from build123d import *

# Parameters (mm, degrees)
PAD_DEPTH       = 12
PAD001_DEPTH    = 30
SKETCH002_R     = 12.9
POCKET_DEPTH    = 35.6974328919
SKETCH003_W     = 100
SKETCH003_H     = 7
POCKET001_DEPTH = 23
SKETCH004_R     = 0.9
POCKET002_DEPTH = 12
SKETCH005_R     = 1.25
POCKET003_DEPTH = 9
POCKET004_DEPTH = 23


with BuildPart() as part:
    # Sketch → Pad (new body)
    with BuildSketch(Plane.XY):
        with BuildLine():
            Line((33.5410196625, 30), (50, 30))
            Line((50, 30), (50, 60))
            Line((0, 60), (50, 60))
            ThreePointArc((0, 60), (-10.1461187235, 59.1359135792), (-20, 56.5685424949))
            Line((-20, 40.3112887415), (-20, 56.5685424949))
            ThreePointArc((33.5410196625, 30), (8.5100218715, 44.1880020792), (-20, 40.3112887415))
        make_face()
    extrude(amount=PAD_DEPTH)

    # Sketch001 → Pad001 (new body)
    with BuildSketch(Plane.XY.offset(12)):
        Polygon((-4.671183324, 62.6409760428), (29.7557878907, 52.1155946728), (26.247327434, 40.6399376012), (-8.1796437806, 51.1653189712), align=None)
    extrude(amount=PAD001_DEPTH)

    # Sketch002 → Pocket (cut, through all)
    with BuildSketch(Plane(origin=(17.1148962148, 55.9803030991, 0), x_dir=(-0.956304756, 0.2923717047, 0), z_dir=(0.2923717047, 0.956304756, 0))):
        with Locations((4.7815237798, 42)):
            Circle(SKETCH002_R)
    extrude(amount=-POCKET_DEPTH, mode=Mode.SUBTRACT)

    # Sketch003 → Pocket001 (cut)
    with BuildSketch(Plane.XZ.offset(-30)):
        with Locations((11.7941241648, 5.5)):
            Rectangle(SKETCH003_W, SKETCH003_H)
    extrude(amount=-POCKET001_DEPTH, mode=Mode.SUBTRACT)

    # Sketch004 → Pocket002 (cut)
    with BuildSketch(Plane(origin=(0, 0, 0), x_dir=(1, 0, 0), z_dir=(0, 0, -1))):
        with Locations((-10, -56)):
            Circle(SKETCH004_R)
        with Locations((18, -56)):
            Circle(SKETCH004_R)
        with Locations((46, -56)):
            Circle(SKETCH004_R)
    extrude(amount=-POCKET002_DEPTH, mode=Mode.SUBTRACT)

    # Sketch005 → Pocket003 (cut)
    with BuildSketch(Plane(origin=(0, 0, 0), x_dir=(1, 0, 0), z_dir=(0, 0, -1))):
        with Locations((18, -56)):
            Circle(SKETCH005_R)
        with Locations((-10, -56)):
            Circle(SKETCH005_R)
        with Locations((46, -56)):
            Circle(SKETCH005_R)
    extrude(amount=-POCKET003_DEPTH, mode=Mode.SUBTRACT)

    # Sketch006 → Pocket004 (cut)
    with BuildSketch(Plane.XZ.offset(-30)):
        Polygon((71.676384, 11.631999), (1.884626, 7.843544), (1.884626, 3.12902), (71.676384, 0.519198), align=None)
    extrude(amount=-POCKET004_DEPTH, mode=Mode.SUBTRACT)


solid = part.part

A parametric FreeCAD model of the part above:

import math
import FreeCAD as App
import Part
import Sketcher
Q = App.Units.Quantity


def add_polygon(sketch, points):
    """Adds a closed chain of lines whose ends are joined by coincident constraints."""
    first, n = sketch.GeometryCount, len(points)
    for a, b in zip(points, points[1:] + points[:1]):
        sketch.addGeometry(Part.LineSegment(App.Vector(*a, 0), App.Vector(*b, 0)), False)
    for i in range(n):
        sketch.addConstraint(Sketcher.Constraint("Coincident", first + i, 2, first + (i + 1) % n, 1))

doc = App.newDocument("Part")
body = doc.addObject("PartDesign::Body", "Body")

# Sketch on XY plane
sketch1 = doc.addObject("Sketcher::SketchObject", "Sketch")
body.addObject(sketch1)
sketch1.AttachmentSupport = (doc.XY_Plane, [""])
sketch1.MapMode = "FlatFace"
sketch1.addGeometry(Part.LineSegment(App.Vector(33.54102, 30, 0), App.Vector(50, 30, 0)), False)
sketch1.addGeometry(Part.LineSegment(App.Vector(50, 30, 0), App.Vector(50, 60, 0)), False)
sketch1.addGeometry(Part.LineSegment(App.Vector(50, 60, 0), App.Vector(0, 60, 0)), False)
sketch1.addGeometry(Part.ArcOfCircle(Part.Circle(App.Vector(0, 0, 0), App.Vector(0, 0, 1), 60), math.radians(90), math.radians(109.471221)), False)
sketch1.addGeometry(Part.LineSegment(App.Vector(-20, 56.568542, 0), App.Vector(-20, 40.311289, 0)), False)
sketch1.addGeometry(Part.ArcOfCircle(Part.Circle(App.Vector(0, 0, 0), App.Vector(0, 0, 1), 45), math.radians(41.810315), math.radians(116.3878)), False)
sketch1.addConstraint(Sketcher.Constraint("Coincident", 0, 2, 1, 1))
sketch1.addConstraint(Sketcher.Constraint("Coincident", 1, 2, 2, 1))
sketch1.addConstraint(Sketcher.Constraint("Tangent", 2, 2, 3, 1))
sketch1.addConstraint(Sketcher.Constraint("Coincident", 3, 2, 4, 1))
sketch1.addConstraint(Sketcher.Constraint("Coincident", 4, 2, 5, 2))
sketch1.addConstraint(Sketcher.Constraint("Coincident", 5, 1, 0, 1))
sketch1.addConstraint(Sketcher.Constraint("Horizontal", 0))
sketch1.addConstraint(Sketcher.Constraint("Vertical", 1))
sketch1.addConstraint(Sketcher.Constraint("Horizontal", 2))
sketch1.addConstraint(Sketcher.Constraint("Vertical", 4))
sketch1.addConstraint(Sketcher.Constraint("Coincident", 3, 3, -1, 1))
sketch1.addConstraint(Sketcher.Constraint("Coincident", 5, 3, -1, 1))
sketch1.addConstraint(Sketcher.Constraint("Radius", 3, 60.0))
sketch1.addConstraint(Sketcher.Constraint("Radius", 5, 45.0))
sketch1.addConstraint(Sketcher.Constraint("DistanceX", 2, 2, 2, 1, 50.0))
sketch1.addConstraint(Sketcher.Constraint("DistanceY", 1, 1, 1, 2, 30.0))
sketch1.addConstraint(Sketcher.Constraint("DistanceX", 3, 2, -1, 1, 20.0))
pad1 = doc.addObject("PartDesign::Pad", "Pad")
body.addObject(pad1)
pad1.Profile = sketch1
pad1.Length = 12

# Sketch on XY plane
sketch2 = doc.addObject("Sketcher::SketchObject", "Sketch001")
body.addObject(sketch2)
sketch2.AttachmentSupport = (doc.XY_Plane, [""])
sketch2.MapMode = "FlatFace"
sketch2.AttachmentOffset = App.Placement(App.Vector(0, 0, 12), App.Rotation())
add_polygon(sketch2, [(29.755788, 52.115595), (-4.671183, 62.640976), (-8.179644, 51.165319), (26.247327, 40.639938)])  # lines 0-3
sketch2.addConstraint(Sketcher.Constraint("Perpendicular", 0, 1))
sketch2.addConstraint(Sketcher.Constraint("Perpendicular", 1, 2))
sketch2.addConstraint(Sketcher.Constraint("Perpendicular", 2, 3))
sketch2.addConstraint(Sketcher.Constraint("Angle", 0, Q("163 deg")))
sketch2.addConstraint(Sketcher.Constraint("Distance", 0, 36.0))
sketch2.addConstraint(Sketcher.Constraint("Distance", 1, 12.0))
sketch2.addConstraint(Sketcher.Constraint("DistanceY", -1, 1, 1, 2, 51.165319))
sketch2.addConstraint(Sketcher.Constraint("DistanceX", 0, 2, -1, 1, 4.671183))
pad2 = doc.addObject("PartDesign::Pad", "Pad001")
body.addObject(pad2)
pad2.Profile = sketch2
pad2.Length = 30

# Sketch on an angled plane
sketch3 = doc.addObject("Sketcher::SketchObject", "Sketch002")
body.addObject(sketch3)
sketch3.Placement = App.Placement(App.Vector(17.114896, 55.980303, 0), App.Rotation(App.Vector(-0.956304756, 0.292371705, 0), App.Vector(0, 0, 1), App.Vector(0.292371705, 0.956304756, 0), "ZXY"))
sketch3.addGeometry(Part.Circle(App.Vector(4.781524, 42, 0), App.Vector(0, 0, 1), 12.9), False)
sketch3.addConstraint(Sketcher.Constraint("Diameter", 0, 25.8))
sketch3.addConstraint(Sketcher.Constraint("DistanceY", -1, 1, 0, 3, 42.0))
sketch3.addConstraint(Sketcher.Constraint("DistanceX", -1, 1, 0, 3, 4.781524))
pocket1 = doc.addObject("PartDesign::Pocket", "Pocket")
body.addObject(pocket1)
pocket1.Profile = sketch3
pocket1.Type = "ThroughAll"

# Sketch on XZ plane
sketch4 = doc.addObject("Sketcher::SketchObject", "Sketch003")
body.addObject(sketch4)
sketch4.AttachmentSupport = (doc.XZ_Plane, [""])
sketch4.MapMode = "FlatFace"
sketch4.AttachmentOffset = App.Placement(App.Vector(0, 0, -30), App.Rotation())
add_polygon(sketch4, [(-38.205876, 9), (-38.205876, 2), (61.794124, 2), (61.794124, 9)])  # lines 0-3
sketch4.addConstraint(Sketcher.Constraint("Vertical", 0))
sketch4.addConstraint(Sketcher.Constraint("Horizontal", 1))
sketch4.addConstraint(Sketcher.Constraint("Vertical", 2))
sketch4.addConstraint(Sketcher.Constraint("Horizontal", 3))
sketch4.addConstraint(Sketcher.Constraint("DistanceX", 1, 1, 1, 2, 100.0))
sketch4.addConstraint(Sketcher.Constraint("DistanceY", 0, 2, 0, 1, 7.0))
sketch4.addConstraint(Sketcher.Constraint("DistanceY", -1, 1, 0, 2, 2.0))
sketch4.addConstraint(Sketcher.Constraint("DistanceX", 0, 2, -1, 1, 38.205876))
pocket2 = doc.addObject("PartDesign::Pocket", "Pocket001")
body.addObject(pocket2)
pocket2.Profile = sketch4
pocket2.Length = 23

# Sketch on XY plane
sketch5 = doc.addObject("Sketcher::SketchObject", "Sketch004")
body.addObject(sketch5)
sketch5.AttachmentSupport = (doc.XY_Plane, [""])
sketch5.MapMode = "FlatFace"
sketch5.addGeometry(Part.Circle(App.Vector(-10, 56, 0), App.Vector(0, 0, 1), 0.9), False)
sketch5.addGeometry(Part.Circle(App.Vector(18, 56, 0), App.Vector(0, 0, 1), 0.9), False)
sketch5.addGeometry(Part.Circle(App.Vector(46, 56, 0), App.Vector(0, 0, 1), 0.9), False)
sketch5.addConstraint(Sketcher.Constraint("Equal", 0, 1))
sketch5.addConstraint(Sketcher.Constraint("Equal", 1, 2))
sketch5.addConstraint(Sketcher.Constraint("Horizontal", 0, 3, 1, 3))
sketch5.addConstraint(Sketcher.Constraint("Horizontal", 1, 3, 2, 3))
sketch5.addConstraint(Sketcher.Constraint("Diameter", 0, 1.8))
sketch5.addConstraint(Sketcher.Constraint("DistanceX", 0, 3, -1, 1, 10.0))
sketch5.addConstraint(Sketcher.Constraint("DistanceY", -1, 1, 0, 3, 56.0))
sketch5.addConstraint(Sketcher.Constraint("DistanceX", -1, 1, 1, 3, 18.0))
sketch5.addConstraint(Sketcher.Constraint("DistanceX", -1, 1, 2, 3, 46.0))
pocket3 = doc.addObject("PartDesign::Pocket", "Pocket002")
body.addObject(pocket3)
pocket3.Profile = sketch5
pocket3.Length = 12
pocket3.Reversed = True

# Sketch on XY plane
sketch6 = doc.addObject("Sketcher::SketchObject", "Sketch005")
body.addObject(sketch6)
sketch6.AttachmentSupport = (doc.XY_Plane, [""])
sketch6.MapMode = "FlatFace"
sketch6.addGeometry(Part.Circle(App.Vector(18, 56, 0), App.Vector(0, 0, 1), 1.25), False)
sketch6.addGeometry(Part.Circle(App.Vector(-10, 56, 0), App.Vector(0, 0, 1), 1.25), False)
sketch6.addGeometry(Part.Circle(App.Vector(46, 56, 0), App.Vector(0, 0, 1), 1.25), False)
sketch6.addConstraint(Sketcher.Constraint("Equal", 0, 1))
sketch6.addConstraint(Sketcher.Constraint("Equal", 1, 2))
sketch6.addConstraint(Sketcher.Constraint("Horizontal", 0, 3, 1, 3))
sketch6.addConstraint(Sketcher.Constraint("Horizontal", 1, 3, 2, 3))
sketch6.addConstraint(Sketcher.Constraint("Diameter", 0, 2.5))
sketch6.addConstraint(Sketcher.Constraint("DistanceX", -1, 1, 0, 3, 18.0))
sketch6.addConstraint(Sketcher.Constraint("DistanceY", -1, 1, 0, 3, 56.0))
sketch6.addConstraint(Sketcher.Constraint("DistanceX", 1, 3, -1, 1, 10.0))
sketch6.addConstraint(Sketcher.Constraint("DistanceX", -1, 1, 2, 3, 46.0))
pocket4 = doc.addObject("PartDesign::Pocket", "Pocket003")
body.addObject(pocket4)
pocket4.Profile = sketch6
pocket4.Length = 9
pocket4.Reversed = True

# Sketch on XZ plane
sketch7 = doc.addObject("Sketcher::SketchObject", "Sketch006")
body.addObject(sketch7)
sketch7.AttachmentSupport = (doc.XZ_Plane, [""])
sketch7.MapMode = "FlatFace"
sketch7.AttachmentOffset = App.Placement(App.Vector(0, 0, -30), App.Rotation())
add_polygon(sketch7, [(71.676384, 11.631999), (1.884626, 7.843544), (1.884626, 3.12902), (71.676384, 0.519198)])  # lines 0-3
sketch7.addConstraint(Sketcher.Constraint("Vertical", 1))
sketch7.addConstraint(Sketcher.Constraint("Vertical", 3))
sketch7.addConstraint(Sketcher.Constraint("DistanceY", 3, 1, 3, 2, 11.112801))
sketch7.addConstraint(Sketcher.Constraint("DistanceY", -1, 1, 3, 2, 11.631999))
sketch7.addConstraint(Sketcher.Constraint("DistanceY", 1, 2, 1, 1, 4.714524))
sketch7.addConstraint(Sketcher.Constraint("DistanceY", -1, 1, 1, 2, 3.12902))
sketch7.addConstraint(Sketcher.Constraint("DistanceX", 1, 2, 2, 2, 69.791758))
sketch7.addConstraint(Sketcher.Constraint("DistanceX", -1, 1, 0, 2, 1.884626))
pocket5 = doc.addObject("PartDesign::Pocket", "Pocket004")
body.addObject(pocket5)
pocket5.Profile = sketch7
pocket5.Length = 23

doc.recompute()
